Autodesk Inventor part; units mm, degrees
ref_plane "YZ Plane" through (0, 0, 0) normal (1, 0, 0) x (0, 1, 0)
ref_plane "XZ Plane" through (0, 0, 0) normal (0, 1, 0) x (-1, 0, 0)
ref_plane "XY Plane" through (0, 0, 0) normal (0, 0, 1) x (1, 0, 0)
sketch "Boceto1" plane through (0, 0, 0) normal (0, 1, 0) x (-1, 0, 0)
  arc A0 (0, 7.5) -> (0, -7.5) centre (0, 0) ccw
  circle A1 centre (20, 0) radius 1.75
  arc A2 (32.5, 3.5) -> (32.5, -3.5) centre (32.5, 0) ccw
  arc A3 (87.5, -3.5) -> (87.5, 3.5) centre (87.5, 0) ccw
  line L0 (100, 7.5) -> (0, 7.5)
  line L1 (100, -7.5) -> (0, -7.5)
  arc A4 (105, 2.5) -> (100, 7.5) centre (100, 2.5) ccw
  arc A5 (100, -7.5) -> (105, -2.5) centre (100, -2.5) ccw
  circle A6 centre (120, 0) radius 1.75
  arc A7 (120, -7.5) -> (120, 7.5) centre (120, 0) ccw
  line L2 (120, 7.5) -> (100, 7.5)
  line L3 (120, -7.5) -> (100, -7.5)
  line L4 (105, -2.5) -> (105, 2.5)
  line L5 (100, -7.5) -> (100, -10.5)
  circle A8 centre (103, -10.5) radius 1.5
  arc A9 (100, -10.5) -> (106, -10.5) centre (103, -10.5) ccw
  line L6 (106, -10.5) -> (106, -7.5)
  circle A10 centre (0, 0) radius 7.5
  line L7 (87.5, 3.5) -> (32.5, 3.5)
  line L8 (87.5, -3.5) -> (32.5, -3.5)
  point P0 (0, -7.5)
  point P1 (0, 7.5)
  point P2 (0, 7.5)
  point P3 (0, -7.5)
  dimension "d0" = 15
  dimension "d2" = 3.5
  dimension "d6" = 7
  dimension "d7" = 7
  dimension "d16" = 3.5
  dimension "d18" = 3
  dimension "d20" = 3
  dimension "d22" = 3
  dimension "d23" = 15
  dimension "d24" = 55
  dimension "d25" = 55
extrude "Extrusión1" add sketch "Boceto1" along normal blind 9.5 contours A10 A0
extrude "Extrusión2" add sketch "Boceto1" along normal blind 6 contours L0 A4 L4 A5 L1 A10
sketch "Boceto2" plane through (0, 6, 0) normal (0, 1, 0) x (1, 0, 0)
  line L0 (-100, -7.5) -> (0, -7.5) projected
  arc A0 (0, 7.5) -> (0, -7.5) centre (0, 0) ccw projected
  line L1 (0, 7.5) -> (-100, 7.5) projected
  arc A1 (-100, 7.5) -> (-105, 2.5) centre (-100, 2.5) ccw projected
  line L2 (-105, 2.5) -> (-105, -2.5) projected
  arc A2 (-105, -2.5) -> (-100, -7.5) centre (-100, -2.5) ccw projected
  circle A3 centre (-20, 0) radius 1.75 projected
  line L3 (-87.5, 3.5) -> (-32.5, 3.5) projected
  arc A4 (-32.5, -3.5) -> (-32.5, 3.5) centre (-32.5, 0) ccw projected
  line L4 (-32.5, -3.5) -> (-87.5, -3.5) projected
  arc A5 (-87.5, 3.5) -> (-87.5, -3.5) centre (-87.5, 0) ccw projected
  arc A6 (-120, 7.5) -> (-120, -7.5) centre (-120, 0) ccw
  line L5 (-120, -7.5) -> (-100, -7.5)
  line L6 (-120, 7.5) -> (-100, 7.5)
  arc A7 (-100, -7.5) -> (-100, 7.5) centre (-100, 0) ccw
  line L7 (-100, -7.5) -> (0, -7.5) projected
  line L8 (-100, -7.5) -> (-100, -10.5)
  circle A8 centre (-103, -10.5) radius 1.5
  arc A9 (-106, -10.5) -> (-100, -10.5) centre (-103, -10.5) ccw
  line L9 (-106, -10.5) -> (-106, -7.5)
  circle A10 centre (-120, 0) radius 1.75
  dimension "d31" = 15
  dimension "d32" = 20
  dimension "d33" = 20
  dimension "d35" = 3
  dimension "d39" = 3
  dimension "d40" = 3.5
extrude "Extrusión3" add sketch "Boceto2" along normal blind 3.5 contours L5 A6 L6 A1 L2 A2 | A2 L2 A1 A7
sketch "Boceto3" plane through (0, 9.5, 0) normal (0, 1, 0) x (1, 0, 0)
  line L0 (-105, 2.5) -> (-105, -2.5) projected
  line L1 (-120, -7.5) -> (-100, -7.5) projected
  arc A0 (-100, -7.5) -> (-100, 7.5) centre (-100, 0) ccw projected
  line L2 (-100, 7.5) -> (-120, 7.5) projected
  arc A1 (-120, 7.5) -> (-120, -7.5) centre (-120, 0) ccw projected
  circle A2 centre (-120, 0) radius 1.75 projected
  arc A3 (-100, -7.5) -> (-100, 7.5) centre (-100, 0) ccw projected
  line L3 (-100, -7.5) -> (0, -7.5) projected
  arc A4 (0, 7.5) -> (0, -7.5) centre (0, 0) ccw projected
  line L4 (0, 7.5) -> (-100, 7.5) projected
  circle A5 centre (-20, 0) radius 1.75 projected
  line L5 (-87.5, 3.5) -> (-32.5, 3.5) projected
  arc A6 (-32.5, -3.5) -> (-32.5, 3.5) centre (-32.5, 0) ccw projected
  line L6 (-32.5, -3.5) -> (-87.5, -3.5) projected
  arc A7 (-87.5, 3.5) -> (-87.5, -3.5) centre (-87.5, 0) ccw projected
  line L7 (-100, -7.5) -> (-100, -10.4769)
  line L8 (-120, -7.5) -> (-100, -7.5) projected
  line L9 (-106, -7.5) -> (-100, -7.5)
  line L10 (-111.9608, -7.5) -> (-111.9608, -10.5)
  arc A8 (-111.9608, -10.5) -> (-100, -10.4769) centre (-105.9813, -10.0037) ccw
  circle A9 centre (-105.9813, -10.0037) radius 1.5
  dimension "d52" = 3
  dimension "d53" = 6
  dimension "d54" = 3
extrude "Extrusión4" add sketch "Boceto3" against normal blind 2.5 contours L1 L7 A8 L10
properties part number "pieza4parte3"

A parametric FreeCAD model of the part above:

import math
import FreeCAD as App
import Part
import Sketcher

V = App.Vector

doc = App.newDocument("Part")
body = doc.addObject("PartDesign::Body", "Body")

# Sketch on XZ plane
sketch1 = body.newObject("Sketcher::SketchObject", "Sketch")
sketch1.AttachmentSupport = (doc.getObject("XZ_Plane"), [""])
sketch1.MapMode = "FlatFace"
sketch1.addGeometry(Part.Circle(V(0, 0, 0), V(0, 0, 1), 8), False)
sketch1.addConstraint(Sketcher.Constraint("Coincident", 0, 3, -1, 1))
sketch1.addConstraint(Sketcher.Constraint("Diameter", 0, 15.0))
pad1 = body.newObject("PartDesign::Pad", "Pad")
pad1.Profile = sketch1
pad1.Length = 9.5
pad1.Reversed = True

# Sketch on XZ plane
sketch2 = body.newObject("Sketcher::SketchObject", "Sketch001")
sketch2.AttachmentSupport = (doc.getObject("XZ_Plane"), [""])
sketch2.MapMode = "FlatFace"
sketch2.addGeometry(Part.LineSegment(V(-100, 7.5, 0), V(0, 7.5, 0)), False)
sketch2.addGeometry(Part.ArcOfCircle(Part.Circle(V(0, 0, 0), V(0, 0, 1), 7.5), math.radians(90), math.radians(270)), False)
sketch2.addGeometry(Part.LineSegment(V(0, -7.5, 0), V(-100, -7.5, 0)), False)
sketch2.addGeometry(Part.ArcOfCircle(Part.Circle(V(-100, -2.5, 0), V(0, 0, 1), 5), math.radians(180), math.radians(270)), False)
sketch2.addGeometry(Part.LineSegment(V(-105, -2.5, 0), V(-105, 2.5, 0)), False)
sketch2.addGeometry(Part.ArcOfCircle(Part.Circle(V(-100, 2.5, 0), V(0, 0, 1), 5), math.radians(90), math.radians(180)), False)
sketch2.addGeometry(Part.Circle(V(-20, 0, 0), V(0, 0, 1), 1.8), False)
sketch2.addGeometry(Part.ArcOfCircle(Part.Circle(V(-32.5, 0, 0), V(0, 0, 1), 3.5), math.radians(-90), math.radians(90)), False)
sketch2.addGeometry(Part.LineSegment(V(-32.5, 3.5, 0), V(-87.5, 3.5, 0)), False)
sketch2.addGeometry(Part.ArcOfCircle(Part.Circle(V(-87.5, 0, 0), V(0, 0, 1), 3.5), math.radians(90), math.radians(270)), False)
sketch2.addGeometry(Part.LineSegment(V(-87.5, -3.5, 0), V(-32.5, -3.5, 0)), False)
sketch2.addConstraint(Sketcher.Constraint("Tangent", 0, 2, 1, 1))
sketch2.addConstraint(Sketcher.Constraint("Tangent", 1, 2, 2, 1))
sketch2.addConstraint(Sketcher.Constraint("Tangent", 2, 2, 3, 2))
sketch2.addConstraint(Sketcher.Constraint("Tangent", 3, 1, 4, 1))
sketch2.addConstraint(Sketcher.Constraint("Tangent", 4, 2, 5, 2))
sketch2.addConstraint(Sketcher.Constraint("Tangent", 5, 1, 0, 1))
sketch2.addConstraint(Sketcher.Constraint("Tangent", 7, 2, 8, 1))
sketch2.addConstraint(Sketcher.Constraint("Tangent", 8, 2, 9, 1))
sketch2.addConstraint(Sketcher.Constraint("Tangent", 9, 2, 10, 1))
sketch2.addConstraint(Sketcher.Constraint("Tangent", 10, 2, 7, 1))
sketch2.addConstraint(Sketcher.Constraint("Horizontal", 0))
sketch2.addConstraint(Sketcher.Constraint("Horizontal", 2))
sketch2.addConstraint(Sketcher.Constraint("Vertical", 4))
sketch2.addConstraint(Sketcher.Constraint("Horizontal", 8))
sketch2.addConstraint(Sketcher.Constraint("Horizontal", 10))
sketch2.addConstraint(Sketcher.Constraint("Coincident", 1, 3, -1, 1))
sketch2.addConstraint(Sketcher.Constraint("Equal", 3, 5))
sketch2.addConstraint(Sketcher.Constraint("PointOnObject", 6, 3, -1))
sketch2.addConstraint(Sketcher.Constraint("PointOnObject", 7, 3, -1))
sketch2.addConstraint(Sketcher.Constraint("Diameter", 6, 3.5))
sketch2.addConstraint(Sketcher.Constraint("Radius", 1, 7.5))
sketch2.addConstraint(Sketcher.Constraint("Radius", 7, 3.5))
sketch2.addConstraint(Sketcher.Constraint("DistanceX", 8, 2, 8, 1, 55.0))
sketch2.addConstraint(Sketcher.Constraint("Radius", 3, 5.0))
sketch2.addConstraint(Sketcher.Constraint("DistanceX", 0, 1, 0, 2, 100.0))
sketch2.addConstraint(Sketcher.Constraint("DistanceX", 6, 3, -1, 1, 20.0))
sketch2.addConstraint(Sketcher.Constraint("DistanceX", 7, 3, -1, 1, 32.5))
pad2 = body.newObject("PartDesign::Pad", "Pad001")
pad2.Profile = sketch2
pad2.Length = 6
pad2.Reversed = True

# Sketch on XZ plane
sketch3 = body.newObject("Sketcher::SketchObject", "Sketch002")
sketch3.AttachmentSupport = (doc.getObject("XZ_Plane"), [""])
sketch3.MapMode = "FlatFace"
sketch3.AttachmentOffset = App.Placement(V(0, 0, -6), App.Rotation())
sketch3.addGeometry(Part.ArcOfCircle(Part.Circle(V(-100, 0, 0), V(0, 0, 1), 7.5), math.radians(-90), math.radians(90)), False)
sketch3.addGeometry(Part.LineSegment(V(-100, -7.5, 0), V(-120, -7.5, 0)), False)
sketch3.addGeometry(Part.ArcOfCircle(Part.Circle(V(-120, 0, 0), V(0, 0, 1), 7.5), math.radians(90), math.radians(270)), False)
sketch3.addGeometry(Part.LineSegment(V(-120, 7.5, 0), V(-100, 7.5, 0)), False)
sketch3.addGeometry(Part.Circle(V(-120, 0, 0), V(0, 0, 1), 1.8), False)
sketch3.addConstraint(Sketcher.Constraint("Tangent", 0, 1, 1, 1))
sketch3.addConstraint(Sketcher.Constraint("Tangent", 1, 2, 2, 2))
sketch3.addConstraint(Sketcher.Constraint("Tangent", 2, 1, 3, 1))
sketch3.addConstraint(Sketcher.Constraint("Tangent", 3, 2, 0, 2))
sketch3.addConstraint(Sketcher.Constraint("Horizontal", 1))
sketch3.addConstraint(Sketcher.Constraint("Horizontal", 3))
sketch3.addConstraint(Sketcher.Constraint("Coincident", 4, 3, 2, 3))
sketch3.addConstraint(Sketcher.Constraint("PointOnObject", 0, 3, -1))
sketch3.addConstraint(Sketcher.Constraint("Diameter", 4, 3.5))
sketch3.addConstraint(Sketcher.Constraint("Radius", 0, 7.5))
sketch3.addConstraint(Sketcher.Constraint("DistanceX", 1, 2, 1, 1, 20.0))
sketch3.addConstraint(Sketcher.Constraint("DistanceX", 0, 3, -1, 1, 100.0))
pad3 = body.newObject("PartDesign::Pad", "Pad002")
pad3.Profile = sketch3
pad3.Length = 3.5
pad3.Reversed = True

# Sketch on XZ plane
sketch4 = body.newObject("Sketcher::SketchObject", "Sketch003")
sketch4.AttachmentSupport = (doc.getObject("XZ_Plane"), [""])
sketch4.MapMode = "FlatFace"
sketch4.AttachmentOffset = App.Placement(V(0, 0, -9.5), App.Rotation())
sketch4.addGeometry(Part.LineSegment(V(-100, 7.5, 0), V(-112, 7.5, 0)), False)
sketch4.addGeometry(Part.LineSegment(V(-112, 7.5, 0), V(-112, 10.5, 0)), False)
sketch4.addGeometry(Part.ArcOfCircle(Part.Circle(V(-106, 10, 0), V(0, 0, 1), 6), math.radians(5), math.radians(175)), False)
sketch4.addGeometry(Part.LineSegment(V(-100, 10.5, 0), V(-100, 7.5, 0)), False)
sketch4.addGeometry(Part.Circle(V(-106, 10, 0), V(0, 0, 1), 1.5), False)
sketch4.addConstraint(Sketcher.Constraint("Coincident", 0, 2, 1, 1))
sketch4.addConstraint(Sketcher.Constraint("Coincident", 1, 2, 2, 2))
sketch4.addConstraint(Sketcher.Constraint("Coincident", 2, 1, 3, 1))
sketch4.addConstraint(Sketcher.Constraint("Coincident", 3, 2, 0, 1))
sketch4.addConstraint(Sketcher.Constraint("Horizontal", 0))
sketch4.addConstraint(Sketcher.Constraint("Vertical", 1))
sketch4.addConstraint(Sketcher.Constraint("Vertical", 3))
sketch4.addConstraint(Sketcher.Constraint("Coincident", 4, 3, 2, 3))
sketch4.addConstraint(Sketcher.Constraint("Diameter", 4, 3.0))
sketch4.addConstraint(Sketcher.Constraint("Radius", 2, 6.0))
sketch4.addConstraint(Sketcher.Constraint("DistanceY", 1, 1, 1, 2, 3.0))
sketch4.addConstraint(Sketcher.Constraint("DistanceX", 2, 1, -1, 1, 100.0))
sketch4.addConstraint(Sketcher.Constraint("DistanceY", -1, 1, 0, 2, 7.5))
sketch4.addConstraint(Sketcher.Constraint("DistanceY", 3, 2, 3, 1, 2.977))
sketch4.addConstraint(Sketcher.Constraint("DistanceX", 0, 2, 0, 1, 11.9608))
pad4 = body.newObject("PartDesign::Pad", "Pad003")
pad4.Profile = sketch4
pad4.Length = 2.5

doc.recompute()
